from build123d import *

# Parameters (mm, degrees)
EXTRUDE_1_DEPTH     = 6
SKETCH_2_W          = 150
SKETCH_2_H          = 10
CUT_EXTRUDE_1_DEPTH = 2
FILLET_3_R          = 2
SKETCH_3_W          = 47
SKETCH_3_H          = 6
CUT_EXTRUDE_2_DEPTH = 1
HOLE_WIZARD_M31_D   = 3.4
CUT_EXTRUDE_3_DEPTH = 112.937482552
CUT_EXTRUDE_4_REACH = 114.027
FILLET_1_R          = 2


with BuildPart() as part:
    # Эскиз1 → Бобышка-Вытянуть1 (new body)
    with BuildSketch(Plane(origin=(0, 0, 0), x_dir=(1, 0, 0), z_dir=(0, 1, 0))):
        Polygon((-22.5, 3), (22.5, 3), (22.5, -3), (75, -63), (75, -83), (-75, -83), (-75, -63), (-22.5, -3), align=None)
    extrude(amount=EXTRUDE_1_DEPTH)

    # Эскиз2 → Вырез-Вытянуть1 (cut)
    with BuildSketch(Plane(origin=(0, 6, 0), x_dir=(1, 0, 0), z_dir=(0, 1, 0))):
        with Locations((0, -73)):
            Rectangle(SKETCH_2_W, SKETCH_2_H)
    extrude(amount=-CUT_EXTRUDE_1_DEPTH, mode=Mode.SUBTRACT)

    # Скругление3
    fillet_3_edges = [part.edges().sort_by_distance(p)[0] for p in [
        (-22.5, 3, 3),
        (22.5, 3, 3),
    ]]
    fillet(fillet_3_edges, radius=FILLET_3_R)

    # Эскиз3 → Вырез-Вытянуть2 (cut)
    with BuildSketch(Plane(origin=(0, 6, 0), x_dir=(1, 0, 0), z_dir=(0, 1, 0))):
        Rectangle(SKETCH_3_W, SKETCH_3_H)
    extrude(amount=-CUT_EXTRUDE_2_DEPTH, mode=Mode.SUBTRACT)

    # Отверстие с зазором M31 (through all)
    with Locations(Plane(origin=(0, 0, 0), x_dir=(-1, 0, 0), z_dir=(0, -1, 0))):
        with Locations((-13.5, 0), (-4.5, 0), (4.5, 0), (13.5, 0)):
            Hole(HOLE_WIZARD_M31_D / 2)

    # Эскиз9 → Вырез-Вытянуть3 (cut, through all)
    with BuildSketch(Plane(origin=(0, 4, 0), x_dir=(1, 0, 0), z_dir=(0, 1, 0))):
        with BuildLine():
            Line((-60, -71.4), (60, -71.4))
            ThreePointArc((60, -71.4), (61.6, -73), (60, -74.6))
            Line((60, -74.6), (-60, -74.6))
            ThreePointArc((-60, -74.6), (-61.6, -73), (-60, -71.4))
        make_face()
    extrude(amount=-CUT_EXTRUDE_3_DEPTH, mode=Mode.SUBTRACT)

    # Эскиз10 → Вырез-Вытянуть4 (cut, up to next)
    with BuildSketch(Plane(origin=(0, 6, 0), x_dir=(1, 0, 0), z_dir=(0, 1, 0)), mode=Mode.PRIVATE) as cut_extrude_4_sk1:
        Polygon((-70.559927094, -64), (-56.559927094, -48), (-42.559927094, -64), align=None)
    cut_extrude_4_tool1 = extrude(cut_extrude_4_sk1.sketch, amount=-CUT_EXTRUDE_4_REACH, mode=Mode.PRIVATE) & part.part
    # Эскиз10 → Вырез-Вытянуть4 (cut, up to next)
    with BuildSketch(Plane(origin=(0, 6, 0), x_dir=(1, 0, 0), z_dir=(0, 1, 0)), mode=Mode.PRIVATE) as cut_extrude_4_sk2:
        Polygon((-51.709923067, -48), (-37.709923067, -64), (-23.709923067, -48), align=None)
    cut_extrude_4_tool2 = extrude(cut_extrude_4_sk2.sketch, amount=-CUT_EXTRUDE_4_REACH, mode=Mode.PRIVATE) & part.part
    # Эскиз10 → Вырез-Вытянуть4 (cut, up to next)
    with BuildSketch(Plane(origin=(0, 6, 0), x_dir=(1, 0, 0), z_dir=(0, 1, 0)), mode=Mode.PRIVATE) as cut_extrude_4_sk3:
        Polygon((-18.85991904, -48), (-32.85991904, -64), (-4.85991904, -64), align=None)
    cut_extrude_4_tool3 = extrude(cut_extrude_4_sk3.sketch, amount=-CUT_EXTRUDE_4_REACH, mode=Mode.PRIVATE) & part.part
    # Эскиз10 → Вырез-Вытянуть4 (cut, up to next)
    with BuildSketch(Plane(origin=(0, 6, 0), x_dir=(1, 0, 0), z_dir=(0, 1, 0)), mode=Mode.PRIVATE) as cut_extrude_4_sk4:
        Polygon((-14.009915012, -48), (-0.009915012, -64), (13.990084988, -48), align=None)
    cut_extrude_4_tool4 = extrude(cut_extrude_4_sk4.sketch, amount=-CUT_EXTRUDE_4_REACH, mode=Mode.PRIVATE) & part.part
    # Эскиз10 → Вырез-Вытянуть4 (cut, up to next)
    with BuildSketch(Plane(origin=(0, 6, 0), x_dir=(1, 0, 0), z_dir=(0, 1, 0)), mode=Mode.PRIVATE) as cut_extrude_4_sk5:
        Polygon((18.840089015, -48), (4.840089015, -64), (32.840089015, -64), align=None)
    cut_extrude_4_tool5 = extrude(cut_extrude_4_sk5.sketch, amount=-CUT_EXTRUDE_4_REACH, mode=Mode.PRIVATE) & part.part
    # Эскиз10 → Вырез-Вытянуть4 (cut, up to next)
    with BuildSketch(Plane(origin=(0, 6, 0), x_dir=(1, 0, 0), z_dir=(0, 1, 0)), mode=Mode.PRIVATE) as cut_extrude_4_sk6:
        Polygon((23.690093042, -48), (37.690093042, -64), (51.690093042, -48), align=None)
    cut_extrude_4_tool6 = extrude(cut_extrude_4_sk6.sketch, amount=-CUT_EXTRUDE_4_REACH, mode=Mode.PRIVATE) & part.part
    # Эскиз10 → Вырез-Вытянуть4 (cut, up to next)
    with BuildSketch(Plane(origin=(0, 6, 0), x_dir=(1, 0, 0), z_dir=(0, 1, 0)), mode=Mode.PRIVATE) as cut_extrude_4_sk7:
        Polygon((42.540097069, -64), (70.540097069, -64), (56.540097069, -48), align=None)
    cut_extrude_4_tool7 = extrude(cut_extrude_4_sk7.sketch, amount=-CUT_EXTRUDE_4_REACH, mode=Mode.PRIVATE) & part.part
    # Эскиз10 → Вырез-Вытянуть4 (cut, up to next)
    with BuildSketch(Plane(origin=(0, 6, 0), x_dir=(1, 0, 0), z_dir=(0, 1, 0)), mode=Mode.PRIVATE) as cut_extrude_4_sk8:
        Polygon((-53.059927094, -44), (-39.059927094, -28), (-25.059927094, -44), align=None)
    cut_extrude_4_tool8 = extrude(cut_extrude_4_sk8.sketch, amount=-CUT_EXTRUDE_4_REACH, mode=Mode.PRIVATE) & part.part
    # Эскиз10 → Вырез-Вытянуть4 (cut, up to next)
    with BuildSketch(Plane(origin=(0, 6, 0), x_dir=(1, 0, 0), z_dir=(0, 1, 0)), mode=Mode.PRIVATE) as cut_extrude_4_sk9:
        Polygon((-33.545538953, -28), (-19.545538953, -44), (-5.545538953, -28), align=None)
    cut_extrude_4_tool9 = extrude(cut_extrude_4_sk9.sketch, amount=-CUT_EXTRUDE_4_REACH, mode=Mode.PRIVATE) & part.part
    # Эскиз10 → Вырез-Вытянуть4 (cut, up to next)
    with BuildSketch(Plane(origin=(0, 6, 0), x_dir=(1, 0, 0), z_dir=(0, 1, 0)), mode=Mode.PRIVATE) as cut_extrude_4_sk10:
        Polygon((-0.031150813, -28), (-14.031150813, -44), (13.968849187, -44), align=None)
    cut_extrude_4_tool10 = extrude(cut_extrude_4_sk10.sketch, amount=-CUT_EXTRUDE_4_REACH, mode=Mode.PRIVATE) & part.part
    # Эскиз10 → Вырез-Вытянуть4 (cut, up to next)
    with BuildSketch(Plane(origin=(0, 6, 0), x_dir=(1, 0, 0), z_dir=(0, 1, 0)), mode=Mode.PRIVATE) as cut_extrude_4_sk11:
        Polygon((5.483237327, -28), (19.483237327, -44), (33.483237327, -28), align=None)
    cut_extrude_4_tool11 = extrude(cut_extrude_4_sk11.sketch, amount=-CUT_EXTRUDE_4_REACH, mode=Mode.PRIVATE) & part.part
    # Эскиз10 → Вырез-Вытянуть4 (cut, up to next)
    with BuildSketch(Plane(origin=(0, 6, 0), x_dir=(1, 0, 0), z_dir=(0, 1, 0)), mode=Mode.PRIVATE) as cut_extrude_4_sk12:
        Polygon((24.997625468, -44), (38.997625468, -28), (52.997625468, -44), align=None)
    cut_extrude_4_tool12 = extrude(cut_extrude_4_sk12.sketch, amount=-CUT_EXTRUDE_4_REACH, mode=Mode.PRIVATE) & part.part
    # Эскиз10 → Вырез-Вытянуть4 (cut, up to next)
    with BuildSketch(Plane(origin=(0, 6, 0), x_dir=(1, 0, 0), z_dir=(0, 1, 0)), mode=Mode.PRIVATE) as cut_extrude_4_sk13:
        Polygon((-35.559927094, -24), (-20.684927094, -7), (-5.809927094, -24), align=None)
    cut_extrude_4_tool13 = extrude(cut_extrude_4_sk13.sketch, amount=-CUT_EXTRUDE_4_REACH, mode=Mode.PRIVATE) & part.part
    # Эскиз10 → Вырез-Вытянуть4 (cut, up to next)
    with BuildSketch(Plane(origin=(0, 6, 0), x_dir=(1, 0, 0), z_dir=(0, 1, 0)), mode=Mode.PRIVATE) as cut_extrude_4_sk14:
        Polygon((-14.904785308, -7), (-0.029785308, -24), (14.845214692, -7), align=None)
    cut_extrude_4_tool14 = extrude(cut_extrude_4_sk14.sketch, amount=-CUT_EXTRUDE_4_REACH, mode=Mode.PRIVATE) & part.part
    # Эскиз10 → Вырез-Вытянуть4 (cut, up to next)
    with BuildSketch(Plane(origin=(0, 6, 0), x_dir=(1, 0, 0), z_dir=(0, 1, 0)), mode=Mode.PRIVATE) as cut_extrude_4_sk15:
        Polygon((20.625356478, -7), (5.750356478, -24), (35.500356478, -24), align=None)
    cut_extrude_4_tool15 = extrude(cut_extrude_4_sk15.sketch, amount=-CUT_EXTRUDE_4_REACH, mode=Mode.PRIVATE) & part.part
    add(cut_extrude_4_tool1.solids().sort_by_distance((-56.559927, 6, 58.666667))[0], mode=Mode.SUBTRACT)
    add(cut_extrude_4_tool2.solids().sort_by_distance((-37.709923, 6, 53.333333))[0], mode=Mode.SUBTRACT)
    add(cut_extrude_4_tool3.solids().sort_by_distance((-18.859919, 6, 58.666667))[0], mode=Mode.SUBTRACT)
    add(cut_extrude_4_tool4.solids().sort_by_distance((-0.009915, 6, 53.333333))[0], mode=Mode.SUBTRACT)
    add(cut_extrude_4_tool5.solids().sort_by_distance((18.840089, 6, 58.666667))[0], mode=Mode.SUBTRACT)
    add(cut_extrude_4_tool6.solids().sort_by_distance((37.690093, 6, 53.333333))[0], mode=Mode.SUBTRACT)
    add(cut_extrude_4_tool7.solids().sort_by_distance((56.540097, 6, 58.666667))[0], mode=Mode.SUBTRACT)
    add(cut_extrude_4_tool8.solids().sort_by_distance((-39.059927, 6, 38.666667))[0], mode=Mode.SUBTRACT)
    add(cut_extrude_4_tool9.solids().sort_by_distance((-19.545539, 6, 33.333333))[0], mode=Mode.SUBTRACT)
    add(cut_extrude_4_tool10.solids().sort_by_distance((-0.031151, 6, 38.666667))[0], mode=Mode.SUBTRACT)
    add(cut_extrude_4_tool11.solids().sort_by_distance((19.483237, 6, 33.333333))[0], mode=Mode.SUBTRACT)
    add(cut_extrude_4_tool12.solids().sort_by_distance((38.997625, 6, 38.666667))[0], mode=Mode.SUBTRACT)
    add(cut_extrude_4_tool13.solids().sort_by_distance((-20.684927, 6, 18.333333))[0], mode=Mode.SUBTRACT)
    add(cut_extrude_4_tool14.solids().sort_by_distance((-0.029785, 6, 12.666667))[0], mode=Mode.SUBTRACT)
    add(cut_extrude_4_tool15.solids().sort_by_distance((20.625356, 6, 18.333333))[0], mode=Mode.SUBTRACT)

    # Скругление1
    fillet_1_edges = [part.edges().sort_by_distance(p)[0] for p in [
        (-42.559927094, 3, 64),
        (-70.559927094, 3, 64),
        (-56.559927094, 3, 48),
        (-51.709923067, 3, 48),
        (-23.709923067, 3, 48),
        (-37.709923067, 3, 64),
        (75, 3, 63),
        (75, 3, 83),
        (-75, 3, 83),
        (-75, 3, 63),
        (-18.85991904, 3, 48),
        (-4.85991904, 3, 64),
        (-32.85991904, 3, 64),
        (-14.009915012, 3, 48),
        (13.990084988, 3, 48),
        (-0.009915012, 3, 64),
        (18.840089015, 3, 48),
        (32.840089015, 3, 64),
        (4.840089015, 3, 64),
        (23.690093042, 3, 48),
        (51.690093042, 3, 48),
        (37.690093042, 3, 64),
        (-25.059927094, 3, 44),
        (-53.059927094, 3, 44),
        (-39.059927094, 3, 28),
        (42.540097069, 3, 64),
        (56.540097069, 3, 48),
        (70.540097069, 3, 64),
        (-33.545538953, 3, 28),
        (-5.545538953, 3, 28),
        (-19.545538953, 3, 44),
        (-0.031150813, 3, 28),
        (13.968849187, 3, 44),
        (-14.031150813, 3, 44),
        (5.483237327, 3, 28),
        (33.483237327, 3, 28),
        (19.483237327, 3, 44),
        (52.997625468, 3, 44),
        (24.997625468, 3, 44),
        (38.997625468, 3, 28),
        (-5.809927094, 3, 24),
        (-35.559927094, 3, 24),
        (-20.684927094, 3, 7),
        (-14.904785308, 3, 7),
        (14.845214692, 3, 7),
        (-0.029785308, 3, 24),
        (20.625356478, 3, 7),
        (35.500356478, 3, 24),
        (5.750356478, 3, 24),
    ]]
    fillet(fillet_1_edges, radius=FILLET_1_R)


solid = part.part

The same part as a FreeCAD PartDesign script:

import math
import FreeCAD as App
import Part
import Sketcher
from FreeCAD import Vector
Q = App.Units.Quantity


def edges_at(feature, points):
    """Names of the edges that pass closest to the given points."""
    edges = feature.Shape.Edges
    near = lambda p: min(range(len(edges)), key=lambda i: edges[i].distToShape(Part.Vertex(*p))[0])
    return sorted({f"Edge{near(p) + 1}" for p in points})

doc = App.newDocument("Part")
body = doc.addObject("PartDesign::Body", "Body")

sketch1 = body.newObject("Sketcher::SketchObject", "Sketch")
sketch1.AttachmentSupport = (doc.getObject("XZ_Plane"), [""])
sketch1.MapMode = "FlatFace"
sketch1.addGeometry([
    Part.LineSegment(Vector(22, -3, 0), Vector(-22, -3, 0)),
    Part.LineSegment(Vector(-22, -3, 0), Vector(-22, 3, 0)),
    Part.LineSegment(Vector(-22, 3, 0), Vector(-75, 63, 0)),
    Part.LineSegment(Vector(-75, 63, 0), Vector(-75, 83, 0)),
    Part.LineSegment(Vector(-75, 83, 0), Vector(75, 83, 0)),
    Part.LineSegment(Vector(75, 83, 0), Vector(75, 63, 0)),
    Part.LineSegment(Vector(75, 63, 0), Vector(22, 3, 0)),
    Part.LineSegment(Vector(22, 3, 0), Vector(22, -3, 0)),
], False)
sketch1.addConstraint([
    Sketcher.Constraint("Coincident", 0, 2, 1, 1),
    Sketcher.Constraint("Coincident", 1, 2, 2, 1),
    Sketcher.Constraint("Coincident", 2, 2, 3, 1),
    Sketcher.Constraint("Coincident", 3, 2, 4, 1),
    Sketcher.Constraint("Coincident", 4, 2, 5, 1),
    Sketcher.Constraint("Coincident", 5, 2, 6, 1),
    Sketcher.Constraint("Coincident", 6, 2, 7, 1),
    Sketcher.Constraint("Coincident", 7, 2, 0, 1),
    Sketcher.Constraint("Horizontal", 0),
    Sketcher.Constraint("Vertical", 1),
    Sketcher.Constraint("Vertical", 3),
    Sketcher.Constraint("Horizontal", 4),
    Sketcher.Constraint("Vertical", 5),
    Sketcher.Constraint("Vertical", 7),
    Sketcher.Constraint("Symmetric", 0, 2, 6, 2, -1, 1),
    Sketcher.Constraint("Symmetric", 2, 2, 5, 2, -2),
    Sketcher.Constraint("Horizontal", 1, 2, 6, 2),
    Sketcher.Constraint("DistanceX", 0, 2, 0, 1, Q("45 mm")),
    Sketcher.Constraint("DistanceX", 4, 1, 4, 2, Q("150 mm")),
    Sketcher.Constraint("DistanceY", 1, 1, 1, 2, Q("6 mm")),
    Sketcher.Constraint("DistanceY", 3, 1, 3, 2, Q("20 mm")),
    Sketcher.Constraint("DistanceY", -1, 1, 2, 2, Q("63 mm")),
])
pad1 = body.newObject("PartDesign::Pad", "Pad")
pad1.Profile = sketch1
pad1.Length = 6
pad1.Reversed = True

sketch2 = body.newObject("Sketcher::SketchObject", "Sketch001")
sketch2.AttachmentSupport = (doc.getObject("XZ_Plane"), [""])
sketch2.MapMode = "FlatFace"
sketch2.AttachmentOffset = App.Placement(Vector(0, 0, -6), App.Rotation())
sketch2.addGeometry([
    Part.LineSegment(Vector(-75, 68, 0), Vector(-75, 78, 0)),
    Part.LineSegment(Vector(-75, 78, 0), Vector(75, 78, 0)),
    Part.LineSegment(Vector(75, 78, 0), Vector(75, 68, 0)),
    Part.LineSegment(Vector(75, 68, 0), Vector(-75, 68, 0)),
], False)
sketch2.addConstraint([
    Sketcher.Constraint("Coincident", 0, 2, 1, 1),
    Sketcher.Constraint("Coincident", 1, 2, 2, 1),
    Sketcher.Constraint("Coincident", 2, 2, 3, 1),
    Sketcher.Constraint("Coincident", 3, 2, 0, 1),
    Sketcher.Constraint("Vertical", 0),
    Sketcher.Constraint("Horizontal", 1),
    Sketcher.Constraint("Vertical", 2),
    Sketcher.Constraint("Horizontal", 3),
    Sketcher.Constraint("DistanceX", 1, 1, 1, 2, Q("150 mm")),
    Sketcher.Constraint("DistanceY", 0, 1, 0, 2, Q("10 mm")),
    Sketcher.Constraint("DistanceX", 0, 2, -1, 1, Q("75 mm")),
    Sketcher.Constraint("DistanceY", -1, 1, 0, 2, Q("78 mm")),
])
pocket1 = body.newObject("PartDesign::Pocket", "Pocket")
pocket1.Profile = sketch2
pocket1.Length = 2
pocket1.Reversed = True
doc.recompute()

fillet = body.newObject("PartDesign::Fillet", "Fillet")
fillet.Base = (pocket1, edges_at(pocket1, [(-22.5, 3, 3), (22.5, 3, 3)]))
fillet.Radius = 2

sketch3 = body.newObject("Sketcher::SketchObject", "Sketch002")
sketch3.AttachmentSupport = (doc.getObject("XZ_Plane"), [""])
sketch3.MapMode = "FlatFace"
sketch3.AttachmentOffset = App.Placement(Vector(0, 0, -6), App.Rotation())
sketch3.addGeometry([
    Part.LineSegment(Vector(-24, -3, 0), Vector(-24, 3, 0)),
    Part.LineSegment(Vector(-24, 3, 0), Vector(24, 3, 0)),
    Part.LineSegment(Vector(24, 3, 0), Vector(24, -3, 0)),
    Part.LineSegment(Vector(24, -3, 0), Vector(-24, -3, 0)),
], False)
sketch3.addConstraint([
    Sketcher.Constraint("Coincident", 0, 2, 1, 1),
    Sketcher.Constraint("Coincident", 1, 2, 2, 1),
    Sketcher.Constraint("Coincident", 2, 2, 3, 1),
    Sketcher.Constraint("Coincident", 3, 2, 0, 1),
    Sketcher.Constraint("Vertical", 0),
    Sketcher.Constraint("Horizontal", 1),
    Sketcher.Constraint("Vertical", 2),
    Sketcher.Constraint("Horizontal", 3),
    Sketcher.Constraint("Symmetric", 0, 2, 2, 2, -1, 1),
    Sketcher.Constraint("DistanceX", 1, 1, 1, 2, Q("47 mm")),
    Sketcher.Constraint("DistanceY", 0, 1, 0, 2, Q("6 mm")),
])
pocket2 = body.newObject("PartDesign::Pocket", "Pocket001")
pocket2.Profile = sketch3
pocket2.Length = 1
pocket2.Reversed = True

sketch4 = body.newObject("Sketcher::SketchObject", "Sketch003")
sketch4.AttachmentSupport = (doc.getObject("XZ_Plane"), [""])
sketch4.MapMode = "FlatFace"
sketch4.addGeometry([
    Part.Circle(Vector(13.5, 0, 0), Vector(0, 0, 1), 1.7),
    Part.Circle(Vector(4.5, 0, 0), Vector(0, 0, 1), 1.7),
    Part.Circle(Vector(-4.5, 0, 0), Vector(0, 0, 1), 1.7),
    Part.Circle(Vector(-13.5, 0, 0), Vector(0, 0, 1), 1.7),
], False)
sketch4.addConstraint([
    Sketcher.Constraint("Equal", 0, 1),
    Sketcher.Constraint("Equal", 1, 2),
    Sketcher.Constraint("Equal", 2, 3),
    Sketcher.Constraint("Symmetric", 1, 3, 2, 3, -1, 1),
    Sketcher.Constraint("Symmetric", 0, 3, 3, 3, -1, 1),
    Sketcher.Constraint("PointOnObject", 0, 3, -1),
    Sketcher.Constraint("PointOnObject", 1, 3, -1),
    Sketcher.Constraint("Diameter", 0, Q("3.4 mm")),
    Sketcher.Constraint("DistanceX", 1, 3, 0, 3, Q("9 mm")),
    Sketcher.Constraint("DistanceX", 2, 3, 1, 3, Q("9 mm")),
])
doc.recompute()
hole = body.newObject("PartDesign::Hole", "Hole")
hole.Profile = sketch4
hole.ThreadType = "None"
hole.Diameter = 3.4
hole.DepthType = "ThroughAll"

sketch5 = body.newObject("Sketcher::SketchObject", "Sketch004")
sketch5.AttachmentSupport = (doc.getObject("XZ_Plane"), [""])
sketch5.MapMode = "FlatFace"
sketch5.AttachmentOffset = App.Placement(Vector(0, 0, -4), App.Rotation())
sketch5.addGeometry([
    Part.LineSegment(Vector(60, 71.4, 0), Vector(-60, 71.4, 0)),
    Part.ArcOfCircle(Part.Circle(Vector(-60, 73, 0), Vector(0, 0, 1), 1.6), math.radians(90), math.radians(270)),
    Part.LineSegment(Vector(-60, 74.6, 0), Vector(60, 74.6, 0)),
    Part.ArcOfCircle(Part.Circle(Vector(60, 73, 0), Vector(0, 0, 1), 1.6), math.radians(-90), math.radians(90)),
], False)
sketch5.addConstraint([
    Sketcher.Constraint("Tangent", 0, 2, 1, 2),
    Sketcher.Constraint("Tangent", 1, 1, 2, 1),
    Sketcher.Constraint("Tangent", 2, 2, 3, 2),
    Sketcher.Constraint("Tangent", 3, 1, 0, 1),
    Sketcher.Constraint("Horizontal", 0),
    Sketcher.Constraint("Horizontal", 2),
    Sketcher.Constraint("Radius", 1, Q("1.6 mm")),
    Sketcher.Constraint("DistanceX", 0, 2, 0, 1, Q("120 mm")),
    Sketcher.Constraint("DistanceX", 1, 3, -1, 1, Q("60 mm")),
    Sketcher.Constraint("DistanceY", -1, 1, 1, 3, Q("73 mm")),
])
pocket3 = body.newObject("PartDesign::Pocket", "Pocket002")
pocket3.Profile = sketch5
pocket3.Type = "ThroughAll"
pocket3.Reversed = True

sketch6 = body.newObject("Sketcher::SketchObject", "Sketch005")
sketch6.AttachmentSupport = (doc.getObject("XZ_Plane"), [""])
sketch6.MapMode = "FlatFace"
sketch6.AttachmentOffset = App.Placement(Vector(0, 0, -6), App.Rotation())
sketch6.addGeometry([
    Part.LineSegment(Vector(-57, 48, 0), Vector(-71, 64, 0)),
    Part.LineSegment(Vector(-71, 64, 0), Vector(-43, 64, 0)),
    Part.LineSegment(Vector(-43, 64, 0), Vector(-57, 48, 0)),
], False)
sketch6.addConstraint([
    Sketcher.Constraint("Coincident", 0, 2, 1, 1),
    Sketcher.Constraint("Coincident", 1, 2, 2, 1),
    Sketcher.Constraint("Coincident", 2, 2, 0, 1),
    Sketcher.Constraint("Horizontal", 1),
    Sketcher.Constraint("Equal", 0, 2),
    Sketcher.Constraint("DistanceX", 1, 1, 1, 2, Q("28 mm")),
    Sketcher.Constraint("DistanceY", -1, 1, 0, 2, Q("64 mm")),
    Sketcher.Constraint("DistanceY", -1, 1, 2, 2, Q("48 mm")),
    Sketcher.Constraint("DistanceX", 0, 2, -1, 1, Q("70.559927 mm")),
])
pocket4 = body.newObject("PartDesign::Pocket", "Pocket003")
pocket4.Profile = sketch6
pocket4.Type = "UpToFirst"
pocket4.Reversed = True

sketch7 = body.newObject("Sketcher::SketchObject", "Sketch006")
sketch7.AttachmentSupport = (doc.getObject("XZ_Plane"), [""])
sketch7.MapMode = "FlatFace"
sketch7.AttachmentOffset = App.Placement(Vector(0, 0, -6), App.Rotation())
sketch7.addGeometry([
    Part.LineSegment(Vector(-52, 48, 0), Vector(-38, 64, 0)),
    Part.LineSegment(Vector(-38, 64, 0), Vector(-24, 48, 0)),
    Part.LineSegment(Vector(-24, 48, 0), Vector(-52, 48, 0)),
], False)
sketch7.addConstraint([
    Sketcher.Constraint("Coincident", 0, 2, 1, 1),
    Sketcher.Constraint("Coincident", 1, 2, 2, 1),
    Sketcher.Constraint("Coincident", 2, 2, 0, 1),
    Sketcher.Constraint("Horizontal", 2),
    Sketcher.Constraint("Equal", 0, 1),
    Sketcher.Constraint("DistanceX", 2, 2, 2, 1, Q("28 mm")),
    Sketcher.Constraint("DistanceY", -1, 1, 0, 2, Q("64 mm")),
    Sketcher.Constraint("DistanceY", -1, 1, 1, 2, Q("48 mm")),
    Sketcher.Constraint("DistanceX", 0, 2, -1, 1, Q("37.709923 mm")),
])
pocket5 = body.newObject("PartDesign::Pocket", "Pocket004")
pocket5.Profile = sketch7
pocket5.Type = "UpToFirst"
pocket5.Reversed = True

sketch8 = body.newObject("Sketcher::SketchObject", "Sketch007")
sketch8.AttachmentSupport = (doc.getObject("XZ_Plane"), [""])
sketch8.MapMode = "FlatFace"
sketch8.AttachmentOffset = App.Placement(Vector(0, 0, -6), App.Rotation())
sketch8.addGeometry([
    Part.LineSegment(Vector(-19, 48, 0), Vector(-33, 64, 0)),
    Part.LineSegment(Vector(-33, 64, 0), Vector(-5, 64, 0)),
    Part.LineSegment(Vector(-5, 64, 0), Vector(-19, 48, 0)),
], False)
sketch8.addConstraint([
    Sketcher.Constraint("Coincident", 0, 2, 1, 1),
    Sketcher.Constraint("Coincident", 1, 2, 2, 1),
    Sketcher.Constraint("Coincident", 2, 2, 0, 1),
    Sketcher.Constraint("Horizontal", 1),
    Sketcher.Constraint("Equal", 0, 2),
    Sketcher.Constraint("DistanceX", 1, 1, 1, 2, Q("28 mm")),
    Sketcher.Constraint("DistanceY", -1, 1, 0, 2, Q("64 mm")),
    Sketcher.Constraint("DistanceY", -1, 1, 2, 2, Q("48 mm")),
    Sketcher.Constraint("DistanceX", 0, 2, -1, 1, Q("32.859919 mm")),
])
pocket6 = body.newObject("PartDesign::Pocket", "Pocket005")
pocket6.Profile = sketch8
pocket6.Type = "UpToFirst"
pocket6.Reversed = True

sketch9 = body.newObject("Sketcher::SketchObject", "Sketch008")
sketch9.AttachmentSupport = (doc.getObject("XZ_Plane"), [""])
sketch9.MapMode = "FlatFace"
sketch9.AttachmentOffset = App.Placement(Vector(0, 0, -6), App.Rotation())
sketch9.addGeometry([
    Part.LineSegment(Vector(-14, 48, 0), Vector(0, 64, 0)),
    Part.LineSegment(Vector(0, 64, 0), Vector(14, 48, 0)),
    Part.LineSegment(Vector(14, 48, 0), Vector(-14, 48, 0)),
], False)
sketch9.addConstraint([
    Sketcher.Constraint("Coincident", 0, 2, 1, 1),
    Sketcher.Constraint("Coincident", 1, 2, 2, 1),
    Sketcher.Constraint("Coincident", 2, 2, 0, 1),
    Sketcher.Constraint("Horizontal", 2),
    Sketcher.Constraint("Equal", 0, 1),
    Sketcher.Constraint("DistanceX", 2, 2, 2, 1, Q("28 mm")),
    Sketcher.Constraint("DistanceY", -1, 1, 0, 2, Q("64 mm")),
    Sketcher.Constraint("DistanceY", -1, 1, 1, 2, Q("48 mm")),
    Sketcher.Constraint("DistanceX", 0, 2, -1, 1, Q("0.009915 mm")),
])
pocket7 = body.newObject("PartDesign::Pocket", "Pocket006")
pocket7.Profile = sketch9
pocket7.Type = "UpToFirst"
pocket7.Reversed = True

sketch10 = body.newObject("Sketcher::SketchObject", "Sketch009")
sketch10.AttachmentSupport = (doc.getObject("XZ_Plane"), [""])
sketch10.MapMode = "FlatFace"
sketch10.AttachmentOffset = App.Placement(Vector(0, 0, -6), App.Rotation())
sketch10.addGeometry([
    Part.LineSegment(Vector(19, 48, 0), Vector(5, 64, 0)),
    Part.LineSegment(Vector(5, 64, 0), Vector(33, 64, 0)),
    Part.LineSegment(Vector(33, 64, 0), Vector(19, 48, 0)),
], False)
sketch10.addConstraint([
    Sketcher.Constraint("Coincident", 0, 2, 1, 1),
    Sketcher.Constraint("Coincident", 1, 2, 2, 1),
    Sketcher.Constraint("Coincident", 2, 2, 0, 1),
    Sketcher.Constraint("Horizontal", 1),
    Sketcher.Constraint("Equal", 0, 2),
    Sketcher.Constraint("DistanceX", 1, 1, 1, 2, Q("28 mm")),
    Sketcher.Constraint("DistanceY", -1, 1, 0, 2, Q("64 mm")),
    Sketcher.Constraint("DistanceY", -1, 1, 2, 2, Q("48 mm")),
    Sketcher.Constraint("DistanceX", -1, 1, 0, 2, Q("4.840089 mm")),
])
pocket8 = body.newObject("PartDesign::Pocket", "Pocket007")
pocket8.Profile = sketch10
pocket8.Type = "UpToFirst"
pocket8.Reversed = True

sketch11 = body.newObject("Sketcher::SketchObject", "Sketch010")
sketch11.AttachmentSupport = (doc.getObject("XZ_Plane"), [""])
sketch11.MapMode = "FlatFace"
sketch11.AttachmentOffset = App.Placement(Vector(0, 0, -6), App.Rotation())
sketch11.addGeometry([
    Part.LineSegment(Vector(24, 48, 0), Vector(38, 64, 0)),
    Part.LineSegment(Vector(38, 64, 0), Vector(52, 48, 0)),
    Part.LineSegment(Vector(52, 48, 0), Vector(24, 48, 0)),
], False)
sketch11.addConstraint([
    Sketcher.Constraint("Coincident", 0, 2, 1, 1),
    Sketcher.Constraint("Coincident", 1, 2, 2, 1),
    Sketcher.Constraint("Coincident", 2, 2, 0, 1),
    Sketcher.Constraint("Horizontal", 2),
    Sketcher.Constraint("Equal", 0, 1),
    Sketcher.Constraint("DistanceX", 2, 2, 2, 1, Q("28 mm")),
    Sketcher.Constraint("DistanceY", -1, 1, 0, 2, Q("64 mm")),
    Sketcher.Constraint("DistanceY", -1, 1, 1, 2, Q("48 mm")),
    Sketcher.Constraint("DistanceX", -1, 1, 0, 2, Q("37.690093 mm")),
])
pocket9 = body.newObject("PartDesign::Pocket", "Pocket008")
pocket9.Profile = sketch11
pocket9.Type = "UpToFirst"
pocket9.Reversed = True

sketch12 = body.newObject("Sketcher::SketchObject", "Sketch011")
sketch12.AttachmentSupport = (doc.getObject("XZ_Plane"), [""])
sketch12.MapMode = "FlatFace"
sketch12.AttachmentOffset = App.Placement(Vector(0, 0, -6), App.Rotation())
sketch12.addGeometry([
    Part.LineSegment(Vector(43, 64, 0), Vector(71, 64, 0)),
    Part.LineSegment(Vector(71, 64, 0), Vector(57, 48, 0)),
    Part.LineSegment(Vector(57, 48, 0), Vector(43, 64, 0)),
], False)
sketch12.addConstraint([
    Sketcher.Constraint("Coincident", 0, 2, 1, 1),
    Sketcher.Constraint("Coincident", 1, 2, 2, 1),
    Sketcher.Constraint("Coincident", 2, 2, 0, 1),
    Sketcher.Constraint("Horizontal", 0),
    Sketcher.Constraint("Equal", 1, 2),
    Sketcher.Constraint("DistanceX", 0, 1, 0, 2, Q("28 mm")),
    Sketcher.Constraint("DistanceY", -1, 1, 0, 2, Q("64 mm")),
    Sketcher.Constraint("DistanceY", -1, 1, 1, 2, Q("48 mm")),
    Sketcher.Constraint("DistanceX", -1, 1, 0, 2, Q("70.540097 mm")),
])
pocket10 = body.newObject("PartDesign::Pocket", "Pocket009")
pocket10.Profile = sketch12
pocket10.Type = "UpToFirst"
pocket10.Reversed = True

sketch13 = body.newObject("Sketcher::SketchObject", "Sketch012")
sketch13.AttachmentSupport = (doc.getObject("XZ_Plane"), [""])
sketch13.MapMode = "FlatFace"
sketch13.AttachmentOffset = App.Placement(Vector(0, 0, -6), App.Rotation())
sketch13.addGeometry([
    Part.LineSegment(Vector(-39, 28, 0), Vector(-53, 44, 0)),
    Part.LineSegment(Vector(-53, 44, 0), Vector(-25, 44, 0)),
    Part.LineSegment(Vector(-25, 44, 0), Vector(-39, 28, 0)),
], False)
sketch13.addConstraint([
    Sketcher.Constraint("Coincident", 0, 2, 1, 1),
    Sketcher.Constraint("Coincident", 1, 2, 2, 1),
    Sketcher.Constraint("Coincident", 2, 2, 0, 1),
    Sketcher.Constraint("Horizontal", 1),
    Sketcher.Constraint("Equal", 0, 2),
    Sketcher.Constraint("DistanceX", 1, 1, 1, 2, Q("28 mm")),
    Sketcher.Constraint("DistanceY", -1, 1, 0, 2, Q("44 mm")),
    Sketcher.Constraint("DistanceY", -1, 1, 2, 2, Q("28 mm")),
    Sketcher.Constraint("DistanceX", 0, 2, -1, 1, Q("53.059927 mm")),
])
pocket11 = body.newObject("PartDesign::Pocket", "Pocket010")
pocket11.Profile = sketch13
pocket11.Type = "UpToFirst"
pocket11.Reversed = True

sketch14 = body.newObject("Sketcher::SketchObject", "Sketch013")
sketch14.AttachmentSupport = (doc.getObject("XZ_Plane"), [""])
sketch14.MapMode = "FlatFace"
sketch14.AttachmentOffset = App.Placement(Vector(0, 0, -6), App.Rotation())
sketch14.addGeometry([
    Part.LineSegment(Vector(-34, 28, 0), Vector(-20, 44, 0)),
    Part.LineSegment(Vector(-20, 44, 0), Vector(-6, 28, 0)),
    Part.LineSegment(Vector(-6, 28, 0), Vector(-34, 28, 0)),
], False)
sketch14.addConstraint([
    Sketcher.Constraint("Coincident", 0, 2, 1, 1),
    Sketcher.Constraint("Coincident", 1, 2, 2, 1),
    Sketcher.Constraint("Coincident", 2, 2, 0, 1),
    Sketcher.Constraint("Horizontal", 2),
    Sketcher.Constraint("Equal", 0, 1),
    Sketcher.Constraint("DistanceX", 2, 2, 2, 1, Q("28 mm")),
    Sketcher.Constraint("DistanceY", -1, 1, 0, 2, Q("44 mm")),
    Sketcher.Constraint("DistanceY", -1, 1, 1, 2, Q("28 mm")),
    Sketcher.Constraint("DistanceX", 0, 2, -1, 1, Q("19.545539 mm")),
])
pocket12 = body.newObject("PartDesign::Pocket", "Pocket011")
pocket12.Profile = sketch14
pocket12.Type = "UpToFirst"
pocket12.Reversed = True

sketch15 = body.newObject("Sketcher::SketchObject", "Sketch014")
sketch15.AttachmentSupport = (doc.getObject("XZ_Plane"), [""])
sketch15.MapMode = "FlatFace"
sketch15.AttachmentOffset = App.Placement(Vector(0, 0, -6), App.Rotation())
sketch15.addGeometry([
    Part.LineSegment(Vector(0, 28, 0), Vector(-14, 44, 0)),
    Part.LineSegment(Vector(-14, 44, 0), Vector(14, 44, 0)),
    Part.LineSegment(Vector(14, 44, 0), Vector(0, 28, 0)),
], False)
sketch15.addConstraint([
    Sketcher.Constraint("Coincident", 0, 2, 1, 1),
    Sketcher.Constraint("Coincident", 1, 2, 2, 1),
    Sketcher.Constraint("Coincident", 2, 2, 0, 1),
    Sketcher.Constraint("Horizontal", 1),
    Sketcher.Constraint("Equal", 0, 2),
    Sketcher.Constraint("DistanceX", 1, 1, 1, 2, Q("28 mm")),
    Sketcher.Constraint("DistanceY", -1, 1, 0, 2, Q("44 mm")),
    Sketcher.Constraint("DistanceY", -1, 1, 2, 2, Q("28 mm")),
    Sketcher.Constraint("DistanceX", 0, 2, -1, 1, Q("14.031151 mm")),
])
pocket13 = body.newObject("PartDesign::Pocket", "Pocket012")
pocket13.Profile = sketch15
pocket13.Type = "UpToFirst"
pocket13.Reversed = True

sketch16 = body.newObject("Sketcher::SketchObject", "Sketch015")
sketch16.AttachmentSupport = (doc.getObject("XZ_Plane"), [""])
sketch16.MapMode = "FlatFace"
sketch16.AttachmentOffset = App.Placement(Vector(0, 0, -6), App.Rotation())
sketch16.addGeometry([
    Part.LineSegment(Vector(5, 28, 0), Vector(19, 44, 0)),
    Part.LineSegment(Vector(19, 44, 0), Vector(33, 28, 0)),
    Part.LineSegment(Vector(33, 28, 0), Vector(5, 28, 0)),
], False)
sketch16.addConstraint([
    Sketcher.Constraint("Coincident", 0, 2, 1, 1),
    Sketcher.Constraint("Coincident", 1, 2, 2, 1),
    Sketcher.Constraint("Coincident", 2, 2, 0, 1),
    Sketcher.Constraint("Horizontal", 2),
    Sketcher.Constraint("Equal", 0, 1),
    Sketcher.Constraint("DistanceX", 2, 2, 2, 1, Q("28 mm")),
    Sketcher.Constraint("DistanceY", -1, 1, 0, 2, Q("44 mm")),
    Sketcher.Constraint("DistanceY", -1, 1, 1, 2, Q("28 mm")),
    Sketcher.Constraint("DistanceX", -1, 1, 0, 2, Q("19.483237 mm")),
])
pocket14 = body.newObject("PartDesign::Pocket", "Pocket013")
pocket14.Profile = sketch16
pocket14.Type = "UpToFirst"
pocket14.Reversed = True

sketch17 = body.newObject("Sketcher::SketchObject", "Sketch016")
sketch17.AttachmentSupport = (doc.getObject("XZ_Plane"), [""])
sketch17.MapMode = "FlatFace"
sketch17.AttachmentOffset = App.Placement(Vector(0, 0, -6), App.Rotation())
sketch17.addGeometry([
    Part.LineSegment(Vector(39, 28, 0), Vector(25, 44, 0)),
    Part.LineSegment(Vector(25, 44, 0), Vector(53, 44, 0)),
    Part.LineSegment(Vector(53, 44, 0), Vector(39, 28, 0)),
], False)
sketch17.addConstraint([
    Sketcher.Constraint("Coincident", 0, 2, 1, 1),
    Sketcher.Constraint("Coincident", 1, 2, 2, 1),
    Sketcher.Constraint("Coincident", 2, 2, 0, 1),
    Sketcher.Constraint("Horizontal", 1),
    Sketcher.Constraint("Equal", 0, 2),
    Sketcher.Constraint("DistanceX", 1, 1, 1, 2, Q("28 mm")),
    Sketcher.Constraint("DistanceY", -1, 1, 0, 2, Q("44 mm")),
    Sketcher.Constraint("DistanceY", -1, 1, 2, 2, Q("28 mm")),
    Sketcher.Constraint("DistanceX", -1, 1, 0, 2, Q("24.997625 mm")),
])
pocket15 = body.newObject("PartDesign::Pocket", "Pocket014")
pocket15.Profile = sketch17
pocket15.Type = "UpToFirst"
pocket15.Reversed = True

sketch18 = body.newObject("Sketcher::SketchObject", "Sketch017")
sketch18.AttachmentSupport = (doc.getObject("XZ_Plane"), [""])
sketch18.MapMode = "FlatFace"
sketch18.AttachmentOffset = App.Placement(Vector(0, 0, -6), App.Rotation())
sketch18.addGeometry([
    Part.LineSegment(Vector(-21, 7, 0), Vector(-36, 24, 0)),
    Part.LineSegment(Vector(-36, 24, 0), Vector(-6, 24, 0)),
    Part.LineSegment(Vector(-6, 24, 0), Vector(-21, 7, 0)),
], False)
sketch18.addConstraint([
    Sketcher.Constraint("Coincident", 0, 2, 1, 1),
    Sketcher.Constraint("Coincident", 1, 2, 2, 1),
    Sketcher.Constraint("Coincident", 2, 2, 0, 1),
    Sketcher.Constraint("Horizontal", 1),
    Sketcher.Constraint("Equal", 0, 2),
    Sketcher.Constraint("DistanceY", -1, 1, 0, 2, Q("24 mm")),
    Sketcher.Constraint("DistanceY", -1, 1, 2, 2, Q("7 mm")),
    Sketcher.Constraint("DistanceX", 1, 1, 1, 2, Q("29.75 mm")),
    Sketcher.Constraint("DistanceX", 0, 2, -1, 1, Q("35.559927 mm")),
])
pocket16 = body.newObject("PartDesign::Pocket", "Pocket015")
pocket16.Profile = sketch18
pocket16.Type = "UpToFirst"
pocket16.Reversed = True

sketch19 = body.newObject("Sketcher::SketchObject", "Sketch018")
sketch19.AttachmentSupport = (doc.getObject("XZ_Plane"), [""])
sketch19.MapMode = "FlatFace"
sketch19.AttachmentOffset = App.Placement(Vector(0, 0, -6), App.Rotation())
sketch19.addGeometry([
    Part.LineSegment(Vector(-15, 7, 0), Vector(0, 24, 0)),
    Part.LineSegment(Vector(0, 24, 0), Vector(15, 7, 0)),
    Part.LineSegment(Vector(15, 7, 0), Vector(-15, 7, 0)),
], False)
sketch19.addConstraint([
    Sketcher.Constraint("Coincident", 0, 2, 1, 1),
    Sketcher.Constraint("Coincident", 1, 2, 2, 1),
    Sketcher.Constraint("Coincident", 2, 2, 0, 1),
    Sketcher.Constraint("Horizontal", 2),
    Sketcher.Constraint("Equal", 0, 1),
    Sketcher.Constraint("DistanceY", -1, 1, 0, 2, Q("24 mm")),
    Sketcher.Constraint("DistanceY", -1, 1, 1, 2, Q("7 mm")),
    Sketcher.Constraint("DistanceX", 2, 2, 2, 1, Q("29.75 mm")),
    Sketcher.Constraint("DistanceX", 0, 2, -1, 1, Q("0.029785 mm")),
])
pocket17 = body.newObject("PartDesign::Pocket", "Pocket016")
pocket17.Profile = sketch19
pocket17.Type = "UpToFirst"
pocket17.Reversed = True

sketch20 = body.newObject("Sketcher::SketchObject", "Sketch019")
sketch20.AttachmentSupport = (doc.getObject("XZ_Plane"), [""])
sketch20.MapMode = "FlatFace"
sketch20.AttachmentOffset = App.Placement(Vector(0, 0, -6), App.Rotation())
sketch20.addGeometry([
    Part.LineSegment(Vector(21, 7, 0), Vector(6, 24, 0)),
    Part.LineSegment(Vector(6, 24, 0), Vector(36, 24, 0)),
    Part.LineSegment(Vector(36, 24, 0), Vector(21, 7, 0)),
], False)
sketch20.addConstraint([
    Sketcher.Constraint("Coincident", 0, 2, 1, 1),
    Sketcher.Constraint("Coincident", 1, 2, 2, 1),
    Sketcher.Constraint("Coincident", 2, 2, 0, 1),
    Sketcher.Constraint("Horizontal", 1),
    Sketcher.Constraint("Equal", 0, 2),
    Sketcher.Constraint("DistanceY", -1, 1, 0, 2, Q("24 mm")),
    Sketcher.Constraint("DistanceY", -1, 1, 2, 2, Q("7 mm")),
    Sketcher.Constraint("DistanceX", 1, 1, 1, 2, Q("29.75 mm")),
    Sketcher.Constraint("DistanceX", -1, 1, 0, 2, Q("5.750356 mm")),
])
pocket18 = body.newObject("PartDesign::Pocket", "Pocket017")
pocket18.Profile = sketch20
pocket18.Type = "UpToFirst"
pocket18.Reversed = True
doc.recompute()

fillet2 = body.newObject("PartDesign::Fillet", "Fillet001")
fillet2.Base = (pocket18, edges_at(pocket18, [
    (-42.56, 3, 64),
    (-70.56, 3, 64),
    (-56.56, 3, 48),
    (-51.71, 3, 48),
    (-23.71, 3, 48),
    (-37.71, 3, 64),
    (75, 3, 63),
    (75, 3, 83),
    (-75, 3, 83),
    (-75, 3, 63),
    (-18.86, 3, 48),
    (-4.86, 3, 64),
    (-32.86, 3, 64),
    (-14.01, 3, 48),
    (13.99, 3, 48),
    (-0.01, 3, 64),
    (18.84, 3, 48),
    (32.84, 3, 64),
    (4.84, 3, 64),
    (23.69, 3, 48),
    (51.69, 3, 48),
    (37.69, 3, 64),
    (-25.06, 3, 44),
    (-53.06, 3, 44),
    (-39.06, 3, 28),
    (42.54, 3, 64),
    (56.54, 3, 48),
    (70.54, 3, 64),
    (-33.546, 3, 28),
    (-5.546, 3, 28),
    (-19.546, 3, 44),
    (-0.031, 3, 28),
    (13.969, 3, 44),
    (-14.031, 3, 44),
    (5.483, 3, 28),
    (33.483, 3, 28),
    (19.483, 3, 44),
    (52.998, 3, 44),
    (24.998, 3, 44),
    (38.998, 3, 28),
    (-5.81, 3, 24),
    (-35.56, 3, 24),
    (-20.685, 3, 7),
    (-14.905, 3, 7),
    (14.845, 3, 7),
    (-0.03, 3, 24),
    (20.625, 3, 7),
    (35.5, 3, 24),
    (5.75, 3, 24),
]))
fillet2.Radius = 2

doc.recompute()
